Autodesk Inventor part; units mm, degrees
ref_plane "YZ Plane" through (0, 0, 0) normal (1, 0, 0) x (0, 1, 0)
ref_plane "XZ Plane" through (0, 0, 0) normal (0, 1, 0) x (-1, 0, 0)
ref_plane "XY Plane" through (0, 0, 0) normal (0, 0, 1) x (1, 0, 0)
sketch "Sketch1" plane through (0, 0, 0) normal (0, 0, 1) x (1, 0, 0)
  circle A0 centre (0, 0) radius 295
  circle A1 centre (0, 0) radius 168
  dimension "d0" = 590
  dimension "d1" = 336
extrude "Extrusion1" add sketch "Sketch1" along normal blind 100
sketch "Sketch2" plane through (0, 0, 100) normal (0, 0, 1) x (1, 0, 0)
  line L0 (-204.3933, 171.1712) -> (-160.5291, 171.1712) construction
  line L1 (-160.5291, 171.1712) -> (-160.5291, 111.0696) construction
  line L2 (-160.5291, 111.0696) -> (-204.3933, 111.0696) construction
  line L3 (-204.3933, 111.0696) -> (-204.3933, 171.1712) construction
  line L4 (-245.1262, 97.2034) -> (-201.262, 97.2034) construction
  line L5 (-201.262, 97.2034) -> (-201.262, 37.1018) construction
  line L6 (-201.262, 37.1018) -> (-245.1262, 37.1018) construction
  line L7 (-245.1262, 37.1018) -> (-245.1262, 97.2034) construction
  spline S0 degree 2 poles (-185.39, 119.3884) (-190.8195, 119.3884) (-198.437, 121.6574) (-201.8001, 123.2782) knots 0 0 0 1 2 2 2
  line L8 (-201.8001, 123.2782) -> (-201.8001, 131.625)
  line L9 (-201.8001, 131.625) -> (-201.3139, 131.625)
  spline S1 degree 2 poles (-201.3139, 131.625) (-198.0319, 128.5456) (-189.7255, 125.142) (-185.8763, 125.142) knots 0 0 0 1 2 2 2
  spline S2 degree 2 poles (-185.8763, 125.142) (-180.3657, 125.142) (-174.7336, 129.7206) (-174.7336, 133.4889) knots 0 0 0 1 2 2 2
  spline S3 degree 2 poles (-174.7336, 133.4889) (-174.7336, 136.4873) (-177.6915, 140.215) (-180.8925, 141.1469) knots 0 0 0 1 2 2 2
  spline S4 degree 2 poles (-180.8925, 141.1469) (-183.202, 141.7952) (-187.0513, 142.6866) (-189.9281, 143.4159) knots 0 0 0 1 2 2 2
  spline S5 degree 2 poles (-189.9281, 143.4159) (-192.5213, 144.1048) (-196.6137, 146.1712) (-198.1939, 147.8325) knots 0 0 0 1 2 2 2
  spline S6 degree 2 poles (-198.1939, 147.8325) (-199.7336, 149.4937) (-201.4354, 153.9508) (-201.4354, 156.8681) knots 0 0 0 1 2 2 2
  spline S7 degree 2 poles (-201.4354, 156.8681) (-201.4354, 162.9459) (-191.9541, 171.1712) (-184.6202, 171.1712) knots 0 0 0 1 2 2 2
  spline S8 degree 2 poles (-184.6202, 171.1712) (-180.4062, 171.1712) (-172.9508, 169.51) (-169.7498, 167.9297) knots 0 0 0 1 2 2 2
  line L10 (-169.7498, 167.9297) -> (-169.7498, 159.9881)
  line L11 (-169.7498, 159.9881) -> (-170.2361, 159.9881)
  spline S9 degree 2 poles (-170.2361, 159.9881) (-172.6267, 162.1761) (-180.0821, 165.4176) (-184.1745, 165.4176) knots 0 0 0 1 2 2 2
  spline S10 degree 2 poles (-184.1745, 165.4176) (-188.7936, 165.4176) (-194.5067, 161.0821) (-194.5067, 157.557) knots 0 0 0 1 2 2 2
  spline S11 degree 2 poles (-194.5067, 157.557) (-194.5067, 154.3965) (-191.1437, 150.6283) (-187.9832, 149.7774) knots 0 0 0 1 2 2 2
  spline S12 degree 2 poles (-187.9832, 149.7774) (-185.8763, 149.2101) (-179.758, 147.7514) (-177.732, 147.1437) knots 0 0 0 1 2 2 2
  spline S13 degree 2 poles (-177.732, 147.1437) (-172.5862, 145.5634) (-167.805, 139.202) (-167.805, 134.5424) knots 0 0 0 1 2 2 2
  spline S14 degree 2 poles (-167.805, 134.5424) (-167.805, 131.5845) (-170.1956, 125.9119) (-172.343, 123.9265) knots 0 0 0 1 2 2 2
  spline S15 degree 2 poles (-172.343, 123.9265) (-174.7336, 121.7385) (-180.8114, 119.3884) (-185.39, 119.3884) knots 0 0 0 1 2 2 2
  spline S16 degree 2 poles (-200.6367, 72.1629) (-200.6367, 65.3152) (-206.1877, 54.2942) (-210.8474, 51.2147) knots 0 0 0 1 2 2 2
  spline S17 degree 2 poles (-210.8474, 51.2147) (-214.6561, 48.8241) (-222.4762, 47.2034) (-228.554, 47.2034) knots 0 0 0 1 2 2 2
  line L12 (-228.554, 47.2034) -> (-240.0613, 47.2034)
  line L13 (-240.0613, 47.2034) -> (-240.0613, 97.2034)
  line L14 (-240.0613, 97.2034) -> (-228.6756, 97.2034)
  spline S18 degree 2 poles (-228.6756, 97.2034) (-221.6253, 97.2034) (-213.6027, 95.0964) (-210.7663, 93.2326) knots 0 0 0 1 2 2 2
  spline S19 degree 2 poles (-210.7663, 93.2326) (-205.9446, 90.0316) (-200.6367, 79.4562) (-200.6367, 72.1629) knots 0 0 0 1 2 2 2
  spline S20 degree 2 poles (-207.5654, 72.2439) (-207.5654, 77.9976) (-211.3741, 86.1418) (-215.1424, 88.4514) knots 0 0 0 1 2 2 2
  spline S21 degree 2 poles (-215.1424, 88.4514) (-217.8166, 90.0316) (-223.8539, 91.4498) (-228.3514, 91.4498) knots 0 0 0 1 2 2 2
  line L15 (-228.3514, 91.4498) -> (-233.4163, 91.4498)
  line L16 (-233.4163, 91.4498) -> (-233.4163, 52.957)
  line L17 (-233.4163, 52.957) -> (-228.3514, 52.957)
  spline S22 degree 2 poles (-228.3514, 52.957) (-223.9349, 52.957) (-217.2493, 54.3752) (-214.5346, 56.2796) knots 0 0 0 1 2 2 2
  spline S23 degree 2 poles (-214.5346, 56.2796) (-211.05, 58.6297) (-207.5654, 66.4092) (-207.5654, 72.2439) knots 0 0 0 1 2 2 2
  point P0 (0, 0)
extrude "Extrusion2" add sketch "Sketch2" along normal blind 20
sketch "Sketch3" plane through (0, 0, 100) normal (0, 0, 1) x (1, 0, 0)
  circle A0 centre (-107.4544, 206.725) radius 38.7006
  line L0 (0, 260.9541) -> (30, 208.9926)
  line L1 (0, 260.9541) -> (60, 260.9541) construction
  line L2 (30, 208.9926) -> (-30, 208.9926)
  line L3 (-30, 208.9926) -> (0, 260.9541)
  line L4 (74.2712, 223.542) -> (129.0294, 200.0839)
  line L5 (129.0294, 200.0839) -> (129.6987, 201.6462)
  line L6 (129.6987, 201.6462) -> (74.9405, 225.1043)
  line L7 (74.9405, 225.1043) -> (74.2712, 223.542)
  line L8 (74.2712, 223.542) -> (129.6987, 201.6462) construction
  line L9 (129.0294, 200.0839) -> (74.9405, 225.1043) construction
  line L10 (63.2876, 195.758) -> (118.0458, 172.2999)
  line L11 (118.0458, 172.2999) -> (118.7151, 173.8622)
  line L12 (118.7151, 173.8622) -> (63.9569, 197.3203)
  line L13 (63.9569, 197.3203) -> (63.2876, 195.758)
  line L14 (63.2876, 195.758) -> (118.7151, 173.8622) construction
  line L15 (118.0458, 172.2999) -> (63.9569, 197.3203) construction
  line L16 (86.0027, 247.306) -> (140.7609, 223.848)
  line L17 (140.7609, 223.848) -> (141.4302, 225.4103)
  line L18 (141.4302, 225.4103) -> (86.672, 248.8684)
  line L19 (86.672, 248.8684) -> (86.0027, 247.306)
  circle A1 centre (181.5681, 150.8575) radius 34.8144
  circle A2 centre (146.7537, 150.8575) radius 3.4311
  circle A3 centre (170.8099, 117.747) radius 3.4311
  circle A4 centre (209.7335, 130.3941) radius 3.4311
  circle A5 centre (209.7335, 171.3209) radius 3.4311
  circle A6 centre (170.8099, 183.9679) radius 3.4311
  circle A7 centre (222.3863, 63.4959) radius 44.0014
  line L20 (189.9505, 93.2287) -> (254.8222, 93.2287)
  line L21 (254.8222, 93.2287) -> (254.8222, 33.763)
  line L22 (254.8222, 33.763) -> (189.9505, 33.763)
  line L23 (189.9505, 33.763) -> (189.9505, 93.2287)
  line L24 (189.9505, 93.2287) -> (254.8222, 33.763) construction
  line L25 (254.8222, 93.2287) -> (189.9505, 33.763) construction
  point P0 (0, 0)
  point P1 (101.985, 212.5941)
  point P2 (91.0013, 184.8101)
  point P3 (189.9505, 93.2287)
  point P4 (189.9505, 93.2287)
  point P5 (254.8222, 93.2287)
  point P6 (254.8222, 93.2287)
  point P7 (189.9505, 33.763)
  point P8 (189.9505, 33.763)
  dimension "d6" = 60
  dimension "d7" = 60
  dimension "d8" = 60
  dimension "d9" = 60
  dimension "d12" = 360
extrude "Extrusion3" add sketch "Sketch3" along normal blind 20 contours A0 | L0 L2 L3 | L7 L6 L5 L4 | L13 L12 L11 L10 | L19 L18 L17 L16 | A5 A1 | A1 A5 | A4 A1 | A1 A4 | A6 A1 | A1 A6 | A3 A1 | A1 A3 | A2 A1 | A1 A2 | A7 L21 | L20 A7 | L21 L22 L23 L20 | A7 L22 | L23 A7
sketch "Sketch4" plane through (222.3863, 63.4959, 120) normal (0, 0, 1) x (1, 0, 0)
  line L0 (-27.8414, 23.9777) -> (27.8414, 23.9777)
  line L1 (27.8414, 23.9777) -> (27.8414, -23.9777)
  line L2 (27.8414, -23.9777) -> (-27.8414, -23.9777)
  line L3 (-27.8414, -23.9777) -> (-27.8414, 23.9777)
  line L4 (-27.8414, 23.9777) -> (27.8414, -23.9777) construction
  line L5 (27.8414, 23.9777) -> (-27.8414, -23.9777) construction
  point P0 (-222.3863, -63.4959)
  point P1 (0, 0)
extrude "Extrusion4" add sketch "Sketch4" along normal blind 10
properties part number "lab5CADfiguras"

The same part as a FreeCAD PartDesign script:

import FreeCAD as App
import Part
import Sketcher
from FreeCAD import Vector
Q = App.Units.Quantity


def add_polygon(sketch, points):
    """Adds a closed chain of lines whose ends are joined by coincident constraints."""
    first, n = sketch.GeometryCount, len(points)
    for a, b in zip(points, points[1:] + points[:1]):
        sketch.addGeometry(Part.LineSegment(App.Vector(*a, 0), App.Vector(*b, 0)), False)
    for i in range(n):
        sketch.addConstraint(Sketcher.Constraint("Coincident", first + i, 2, first + (i + 1) % n, 1))

doc = App.newDocument("Part")
body = doc.addObject("PartDesign::Body", "Body")

sketch1 = body.newObject("Sketcher::SketchObject", "Sketch")
sketch1.AttachmentSupport = (doc.getObject("XY_Plane"), [""])
sketch1.MapMode = "FlatFace"
sketch1.addGeometry([
    Part.Circle(Vector(0, 0, 0), Vector(0, 0, 1), 295),
    Part.Circle(Vector(0, 0, 0), Vector(0, 0, 1), 168),
], False)
sketch1.addConstraint([
    Sketcher.Constraint("Coincident", 0, 3, -1, 1),
    Sketcher.Constraint("Coincident", 1, 3, -1, 1),
    Sketcher.Constraint("Diameter", 0, Q("590 mm")),
    Sketcher.Constraint("Diameter", 1, Q("336 mm")),
])
pad1 = body.newObject("PartDesign::Pad", "Pad")
pad1.Profile = sketch1
pad1.Length = 100

sketch2 = body.newObject("Sketcher::SketchObject", "Sketch001")
sketch2.AttachmentSupport = (doc.getObject("XY_Plane"), [""])
sketch2.MapMode = "FlatFace"
sketch2.AttachmentOffset = App.Placement(Vector(0, 0, 100), App.Rotation())
sketch2.addGeometry([
    Part.BSplineCurve([Vector(-185.39, 119.3884, 0), Vector(-190.8195, 119.3884, 0), Vector(-198.437, 121.6574, 0), Vector(-201.8001, 123.2782, 0)], [3, 1, 3], [0, 1, 2], False, 2, [1, 1, 1, 1], False),
    Part.BSplineCurve([Vector(-172.343, 123.9265, 0), Vector(-174.7336, 121.7385, 0), Vector(-180.8114, 119.3884, 0), Vector(-185.39, 119.3884, 0)], [3, 1, 3], [0, 1, 2], False, 2, [1, 1, 1, 1], False),
    Part.BSplineCurve([Vector(-167.805, 134.5424, 0), Vector(-167.805, 131.5845, 0), Vector(-170.1956, 125.9119, 0), Vector(-172.343, 123.9265, 0)], [3, 1, 3], [0, 1, 2], False, 2, [1, 1, 1, 1], False),
    Part.BSplineCurve([Vector(-177.732, 147.1437, 0), Vector(-172.5862, 145.5634, 0), Vector(-167.805, 139.202, 0), Vector(-167.805, 134.5424, 0)], [3, 1, 3], [0, 1, 2], False, 2, [1, 1, 1, 1], False),
    Part.BSplineCurve([Vector(-187.9832, 149.7774, 0), Vector(-185.8763, 149.2101, 0), Vector(-179.758, 147.7514, 0), Vector(-177.732, 147.1437, 0)], [3, 1, 3], [0, 1, 2], False, 2, [1, 1, 1, 1], False),
    Part.BSplineCurve([Vector(-194.5067, 157.557, 0), Vector(-194.5067, 154.3965, 0), Vector(-191.1437, 150.6283, 0), Vector(-187.9832, 149.7774, 0)], [3, 1, 3], [0, 1, 2], False, 2, [1, 1, 1, 1], False),
    Part.BSplineCurve([Vector(-184.1745, 165.4176, 0), Vector(-188.7936, 165.4176, 0), Vector(-194.5067, 161.0821, 0), Vector(-194.5067, 157.557, 0)], [3, 1, 3], [0, 1, 2], False, 2, [1, 1, 1, 1], False),
    Part.BSplineCurve([Vector(-170.2361, 159.9881, 0), Vector(-172.6267, 162.1761, 0), Vector(-180.0821, 165.4176, 0), Vector(-184.1745, 165.4176, 0)], [3, 1, 3], [0, 1, 2], False, 2, [1, 1, 1, 1], False),
    Part.LineSegment(Vector(-170.2361, 159.9881, 0), Vector(-169.7498, 159.9881, 0)),
    Part.LineSegment(Vector(-169.7498, 159.9881, 0), Vector(-169.7498, 167.9297, 0)),
    Part.BSplineCurve([Vector(-184.6202, 171.1712, 0), Vector(-180.4062, 171.1712, 0), Vector(-172.9508, 169.51, 0), Vector(-169.7498, 167.9297, 0)], [3, 1, 3], [0, 1, 2], False, 2, [1, 1, 1, 1], False),
    Part.BSplineCurve([Vector(-201.4354, 156.8681, 0), Vector(-201.4354, 162.9459, 0), Vector(-191.9541, 171.1712, 0), Vector(-184.6202, 171.1712, 0)], [3, 1, 3], [0, 1, 2], False, 2, [1, 1, 1, 1], False),
    Part.BSplineCurve([Vector(-198.1939, 147.8325, 0), Vector(-199.7336, 149.4937, 0), Vector(-201.4354, 153.9508, 0), Vector(-201.4354, 156.8681, 0)], [3, 1, 3], [0, 1, 2], False, 2, [1, 1, 1, 1], False),
    Part.BSplineCurve([Vector(-189.9281, 143.4159, 0), Vector(-192.5213, 144.1048, 0), Vector(-196.6137, 146.1712, 0), Vector(-198.1939, 147.8325, 0)], [3, 1, 3], [0, 1, 2], False, 2, [1, 1, 1, 1], False),
    Part.BSplineCurve([Vector(-180.8925, 141.1469, 0), Vector(-183.202, 141.7952, 0), Vector(-187.0513, 142.6866, 0), Vector(-189.9281, 143.4159, 0)], [3, 1, 3], [0, 1, 2], False, 2, [1, 1, 1, 1], False),
    Part.BSplineCurve([Vector(-174.7336, 133.4889, 0), Vector(-174.7336, 136.4873, 0), Vector(-177.6915, 140.215, 0), Vector(-180.8925, 141.1469, 0)], [3, 1, 3], [0, 1, 2], False, 2, [1, 1, 1, 1], False),
    Part.BSplineCurve([Vector(-185.8763, 125.142, 0), Vector(-180.3657, 125.142, 0), Vector(-174.7336, 129.7206, 0), Vector(-174.7336, 133.4889, 0)], [3, 1, 3], [0, 1, 2], False, 2, [1, 1, 1, 1], False),
    Part.BSplineCurve([Vector(-201.3139, 131.625, 0), Vector(-198.0319, 128.5456, 0), Vector(-189.7255, 125.142, 0), Vector(-185.8763, 125.142, 0)], [3, 1, 3], [0, 1, 2], False, 2, [1, 1, 1, 1], False),
    Part.LineSegment(Vector(-201.3139, 131.625, 0), Vector(-201.8001, 131.625, 0)),
    Part.LineSegment(Vector(-201.8001, 131.625, 0), Vector(-201.8001, 123.2782, 0)),
    Part.BSplineCurve([Vector(-200.6367, 72.1629, 0), Vector(-200.6367, 65.3152, 0), Vector(-206.1877, 54.2942, 0), Vector(-210.8474, 51.2147, 0)], [3, 1, 3], [0, 1, 2], False, 2, [1, 1, 1, 1], False),
    Part.BSplineCurve([Vector(-210.7663, 93.2326, 0), Vector(-205.9446, 90.0316, 0), Vector(-200.6367, 79.4562, 0), Vector(-200.6367, 72.1629, 0)], [3, 1, 3], [0, 1, 2], False, 2, [1, 1, 1, 1], False),
    Part.BSplineCurve([Vector(-228.6756, 97.2034, 0), Vector(-221.6253, 97.2034, 0), Vector(-213.6027, 95.0964, 0), Vector(-210.7663, 93.2326, 0)], [3, 1, 3], [0, 1, 2], False, 2, [1, 1, 1, 1], False),
    Part.LineSegment(Vector(-228.6756, 97.2034, 0), Vector(-240.0613, 97.2034, 0)),
    Part.LineSegment(Vector(-240.0613, 97.2034, 0), Vector(-240.0613, 47.2034, 0)),
    Part.LineSegment(Vector(-240.0613, 47.2034, 0), Vector(-228.554, 47.2034, 0)),
    Part.BSplineCurve([Vector(-210.8474, 51.2147, 0), Vector(-214.6561, 48.8241, 0), Vector(-222.4762, 47.2034, 0), Vector(-228.554, 47.2034, 0)], [3, 1, 3], [0, 1, 2], False, 2, [1, 1, 1, 1], False),
    Part.BSplineCurve([Vector(-207.5654, 72.2439, 0), Vector(-207.5654, 77.9976, 0), Vector(-211.3741, 86.1418, 0), Vector(-215.1424, 88.4514, 0)], [3, 1, 3], [0, 1, 2], False, 2, [1, 1, 1, 1], False),
    Part.BSplineCurve([Vector(-214.5346, 56.2796, 0), Vector(-211.05, 58.6297, 0), Vector(-207.5654, 66.4092, 0), Vector(-207.5654, 72.2439, 0)], [3, 1, 3], [0, 1, 2], False, 2, [1, 1, 1, 1], False),
    Part.BSplineCurve([Vector(-228.3514, 52.957, 0), Vector(-223.9349, 52.957, 0), Vector(-217.2493, 54.3752, 0), Vector(-214.5346, 56.2796, 0)], [3, 1, 3], [0, 1, 2], False, 2, [1, 1, 1, 1], False),
    Part.LineSegment(Vector(-228.3514, 52.957, 0), Vector(-233.4163, 52.957, 0)),
    Part.LineSegment(Vector(-233.4163, 52.957, 0), Vector(-233.4163, 91.4498, 0)),
    Part.LineSegment(Vector(-233.4163, 91.4498, 0), Vector(-228.3514, 91.4498, 0)),
    Part.BSplineCurve([Vector(-215.1424, 88.4514, 0), Vector(-217.8166, 90.0316, 0), Vector(-223.8539, 91.4498, 0), Vector(-228.3514, 91.4498, 0)], [3, 1, 3], [0, 1, 2], False, 2, [1, 1, 1, 1], False),
], False)
sketch2.addConstraint([
    Sketcher.Constraint("Block", 0),
    Sketcher.Constraint("Block", 1),
    Sketcher.Constraint("Block", 2),
    Sketcher.Constraint("Block", 3),
    Sketcher.Constraint("Block", 4),
    Sketcher.Constraint("Block", 5),
    Sketcher.Constraint("Block", 6),
    Sketcher.Constraint("Block", 7),
    Sketcher.Constraint("Block", 10),
    Sketcher.Constraint("Block", 11),
    Sketcher.Constraint("Block", 12),
    Sketcher.Constraint("Block", 13),
    Sketcher.Constraint("Block", 14),
    Sketcher.Constraint("Block", 15),
    Sketcher.Constraint("Block", 16),
    Sketcher.Constraint("Block", 17),
    Sketcher.Constraint("Block", 20),
    Sketcher.Constraint("Block", 21),
    Sketcher.Constraint("Block", 22),
    Sketcher.Constraint("Block", 26),
    Sketcher.Constraint("Block", 27),
    Sketcher.Constraint("Block", 28),
    Sketcher.Constraint("Block", 29),
    Sketcher.Constraint("Block", 33),
    Sketcher.Constraint("Coincident", 7, 1, 8, 1),
    Sketcher.Constraint("Coincident", 8, 2, 9, 1),
    Sketcher.Constraint("Coincident", 9, 2, 10, 2),
    Sketcher.Constraint("Coincident", 17, 1, 18, 1),
    Sketcher.Constraint("Coincident", 18, 2, 19, 1),
    Sketcher.Constraint("Coincident", 19, 2, 0, 2),
    Sketcher.Constraint("Coincident", 22, 1, 23, 1),
    Sketcher.Constraint("Coincident", 23, 2, 24, 1),
    Sketcher.Constraint("Coincident", 24, 2, 25, 1),
    Sketcher.Constraint("Coincident", 25, 2, 26, 2),
    Sketcher.Constraint("Coincident", 29, 1, 30, 1),
    Sketcher.Constraint("Coincident", 30, 2, 31, 1),
    Sketcher.Constraint("Coincident", 31, 2, 32, 1),
    Sketcher.Constraint("Coincident", 32, 2, 33, 2),
    Sketcher.Constraint("Horizontal", 8),
    Sketcher.Constraint("Vertical", 9),
    Sketcher.Constraint("Horizontal", 18),
    Sketcher.Constraint("Vertical", 19),
    Sketcher.Constraint("Horizontal", 23),
    Sketcher.Constraint("Vertical", 24),
    Sketcher.Constraint("Horizontal", 25),
    Sketcher.Constraint("Horizontal", 30),
    Sketcher.Constraint("Vertical", 31),
    Sketcher.Constraint("Horizontal", 32),
    Sketcher.Constraint("DistanceX", 30, 2, 30, 1, Q("5.065 mm")),
    Sketcher.Constraint("DistanceX", 23, 2, 32, 2, Q("11.71 mm")),
])
pad2 = body.newObject("PartDesign::Pad", "Pad001")
pad2.Profile = sketch2
pad2.Length = 20

sketch3 = body.newObject("Sketcher::SketchObject", "Sketch002")
sketch3.AttachmentSupport = (doc.getObject("XY_Plane"), [""])
sketch3.MapMode = "FlatFace"
sketch3.AttachmentOffset = App.Placement(Vector(0, 0, 100), App.Rotation())
sketch3.addGeometry(Part.Circle(Vector(-107.4544, 206.725, 0), Vector(0, 0, 1), 38.7006), False)
add_polygon(sketch3, [(30, 208.9926), (0, 260.9541), (-30, 208.9926)])
add_polygon(sketch3, [(74.9405, 225.1043), (74.2712, 223.542), (129.0294, 200.0839), (129.6987, 201.6462)])
add_polygon(sketch3, [(63.9569, 197.3203), (63.2876, 195.758), (118.0458, 172.2999), (118.7151, 173.8622)])
add_polygon(sketch3, [(86.672, 248.8684), (86.0027, 247.306), (140.7609, 223.848), (141.4302, 225.4103)])
sketch3.addGeometry(Part.Circle(Vector(209.7335, 171.3209, 0), Vector(0, 0, 1), 3.4311), False)
sketch3.addGeometry(Part.Circle(Vector(209.7335, 130.3941, 0), Vector(0, 0, 1), 3.4311), False)
sketch3.addGeometry(Part.Circle(Vector(170.8099, 183.9679, 0), Vector(0, 0, 1), 3.4311), False)
sketch3.addGeometry(Part.Circle(Vector(170.8099, 117.747, 0), Vector(0, 0, 1), 3.4311), False)
sketch3.addGeometry(Part.Circle(Vector(146.7537, 150.8575, 0), Vector(0, 0, 1), 3.4311), False)
sketch3.addGeometry(Part.Circle(Vector(222.3863, 63.4959, 0), Vector(0, 0, 1), 44.0014), False)
sketch3.addConstraint([
    Sketcher.Constraint("Horizontal", 3),
    Sketcher.Constraint("PointOnObject", 1, 2, -2),
    Sketcher.Constraint("DistanceX", 3, 1, 3, 2, Q("60 mm")),
    Sketcher.Constraint("Distance", 1, Q("60 mm")),
    Sketcher.Constraint("Distance", 2, Q("60 mm")),
    Sketcher.Constraint("Diameter", 0, Q("77.4012 mm")),
    Sketcher.Constraint("Diameter", 16, Q("6.8622 mm")),
    Sketcher.Constraint("Diameter", 17, Q("6.8622 mm")),
    Sketcher.Constraint("Diameter", 18, Q("6.8622 mm")),
    Sketcher.Constraint("Diameter", 19, Q("6.8622 mm")),
    Sketcher.Constraint("Diameter", 20, Q("6.8622 mm")),
    Sketcher.Constraint("Diameter", 21, Q("88.0028 mm")),
    Sketcher.Constraint("DistanceY", -1, 1, 9, 2, Q("172.3 mm")),
    Sketcher.Constraint("DistanceX", -1, 1, 18, 3, Q("170.81 mm")),
    Sketcher.Constraint("DistanceX", -1, 1, 19, 3, Q("170.81 mm")),
    Sketcher.Constraint("DistanceY", 18, 3, 13, 2, Q("39.88 mm")),
    Sketcher.Constraint("DistanceY", -1, 1, 0, 3, Q("206.725 mm")),
    Sketcher.Constraint("DistanceY", -1, 1, 16, 3, Q("171.321 mm")),
    Sketcher.Constraint("DistanceY", -1, 1, 17, 3, Q("130.394 mm")),
    Sketcher.Constraint("DistanceY", -1, 1, 18, 3, Q("183.968 mm")),
    Sketcher.Constraint("DistanceY", -1, 1, 19, 3, Q("117.747 mm")),
    Sketcher.Constraint("DistanceY", -1, 1, 21, 3, Q("63.496 mm")),
    Sketcher.Constraint("DistanceY", -1, 1, 1, 2, Q("260.954 mm")),
    Sketcher.Constraint("DistanceY", -1, 1, 4, 2, Q("223.542 mm")),
    Sketcher.Constraint("DistanceY", -1, 1, 5, 2, Q("200.084 mm")),
    Sketcher.Constraint("DistanceY", -1, 1, 8, 2, Q("195.758 mm")),
    Sketcher.Constraint("DistanceX", -1, 1, 10, 2, Q("118.715 mm")),
    Sketcher.Constraint("DistanceX", -1, 1, 11, 2, Q("63.957 mm")),
    Sketcher.Constraint("DistanceY", -1, 1, 12, 2, Q("247.306 mm")),
    Sketcher.Constraint("DistanceX", -1, 1, 13, 2, Q("140.761 mm")),
    Sketcher.Constraint("DistanceX", -1, 1, 15, 2, Q("86.672 mm")),
    Sketcher.Constraint("DistanceX", 0, 3, 16, 3, Q("317.188 mm")),
    Sketcher.Constraint("DistanceX", 0, 3, 17, 3, Q("317.188 mm")),
    Sketcher.Constraint("DistanceX", 0, 3, 20, 3, Q("254.208 mm")),
    Sketcher.Constraint("DistanceY", 20, 3, 2, 2, Q("58.135 mm")),
    Sketcher.Constraint("DistanceX", 5, 2, 16, 3, Q("80.704 mm")),
    Sketcher.Constraint("DistanceX", 6, 2, 20, 3, Q("17.055 mm")),
    Sketcher.Constraint("DistanceY", 6, 2, 7, 2, Q("23.458 mm")),
    Sketcher.Constraint("DistanceX", 7, 2, 5, 2, Q("54.089 mm")),
    Sketcher.Constraint("DistanceX", 8, 2, 7, 2, Q("11.653 mm")),
    Sketcher.Constraint("DistanceX", 9, 2, 6, 2, Q("11.653 mm")),
    Sketcher.Constraint("DistanceX", 9, 2, 18, 3, Q("52.764 mm")),
    Sketcher.Constraint("DistanceY", 10, 2, 6, 2, Q("27.784 mm")),
    Sketcher.Constraint("DistanceY", 11, 2, 7, 2, Q("27.784 mm")),
    Sketcher.Constraint("DistanceX", 8, 2, 12, 2, Q("22.715 mm")),
    Sketcher.Constraint("DistanceY", 6, 2, 14, 2, Q("23.764 mm")),
    Sketcher.Constraint("DistanceX", 10, 2, 14, 2, Q("22.715 mm")),
    Sketcher.Constraint("DistanceY", 7, 2, 15, 2, Q("23.764 mm")),
    Sketcher.Constraint("Distance", 4, Q("1.6996 mm")),
    Sketcher.Constraint("Distance", 5, Q("59.5713 mm")),
    Sketcher.Constraint("DistanceX", -1, 1, 21, 3, Q("222.3863 mm")),
])
pad3 = body.newObject("PartDesign::Pad", "Pad002")
pad3.Profile = sketch3
pad3.Length = 20

sketch4 = body.newObject("Sketcher::SketchObject", "Sketch003")
sketch4.AttachmentSupport = (doc.getObject("XY_Plane"), [""])
sketch4.MapMode = "FlatFace"
sketch4.AttachmentOffset = App.Placement(Vector(0, 0, 120), App.Rotation())
add_polygon(sketch4, [(250, 87), (195, 87), (195, 40), (250, 40)])
sketch4.addConstraint([
    Sketcher.Constraint("Horizontal", 0),
    Sketcher.Constraint("Vertical", 1),
    Sketcher.Constraint("Horizontal", 2),
    Sketcher.Constraint("Vertical", 3),
    Sketcher.Constraint("DistanceX", 0, 2, 0, 1, Q("55.6828 mm")),
    Sketcher.Constraint("DistanceY", 1, 2, 1, 1, Q("47.9554 mm")),
    Sketcher.Constraint("DistanceX", -1, 1, 0, 2, Q("194.545 mm")),
    Sketcher.Constraint("DistanceY", -1, 1, 0, 2, Q("87.4736 mm")),
])
pad4 = body.newObject("PartDesign::Pad", "Pad003")
pad4.Profile = sketch4
pad4.Length = 10

doc.recompute()
